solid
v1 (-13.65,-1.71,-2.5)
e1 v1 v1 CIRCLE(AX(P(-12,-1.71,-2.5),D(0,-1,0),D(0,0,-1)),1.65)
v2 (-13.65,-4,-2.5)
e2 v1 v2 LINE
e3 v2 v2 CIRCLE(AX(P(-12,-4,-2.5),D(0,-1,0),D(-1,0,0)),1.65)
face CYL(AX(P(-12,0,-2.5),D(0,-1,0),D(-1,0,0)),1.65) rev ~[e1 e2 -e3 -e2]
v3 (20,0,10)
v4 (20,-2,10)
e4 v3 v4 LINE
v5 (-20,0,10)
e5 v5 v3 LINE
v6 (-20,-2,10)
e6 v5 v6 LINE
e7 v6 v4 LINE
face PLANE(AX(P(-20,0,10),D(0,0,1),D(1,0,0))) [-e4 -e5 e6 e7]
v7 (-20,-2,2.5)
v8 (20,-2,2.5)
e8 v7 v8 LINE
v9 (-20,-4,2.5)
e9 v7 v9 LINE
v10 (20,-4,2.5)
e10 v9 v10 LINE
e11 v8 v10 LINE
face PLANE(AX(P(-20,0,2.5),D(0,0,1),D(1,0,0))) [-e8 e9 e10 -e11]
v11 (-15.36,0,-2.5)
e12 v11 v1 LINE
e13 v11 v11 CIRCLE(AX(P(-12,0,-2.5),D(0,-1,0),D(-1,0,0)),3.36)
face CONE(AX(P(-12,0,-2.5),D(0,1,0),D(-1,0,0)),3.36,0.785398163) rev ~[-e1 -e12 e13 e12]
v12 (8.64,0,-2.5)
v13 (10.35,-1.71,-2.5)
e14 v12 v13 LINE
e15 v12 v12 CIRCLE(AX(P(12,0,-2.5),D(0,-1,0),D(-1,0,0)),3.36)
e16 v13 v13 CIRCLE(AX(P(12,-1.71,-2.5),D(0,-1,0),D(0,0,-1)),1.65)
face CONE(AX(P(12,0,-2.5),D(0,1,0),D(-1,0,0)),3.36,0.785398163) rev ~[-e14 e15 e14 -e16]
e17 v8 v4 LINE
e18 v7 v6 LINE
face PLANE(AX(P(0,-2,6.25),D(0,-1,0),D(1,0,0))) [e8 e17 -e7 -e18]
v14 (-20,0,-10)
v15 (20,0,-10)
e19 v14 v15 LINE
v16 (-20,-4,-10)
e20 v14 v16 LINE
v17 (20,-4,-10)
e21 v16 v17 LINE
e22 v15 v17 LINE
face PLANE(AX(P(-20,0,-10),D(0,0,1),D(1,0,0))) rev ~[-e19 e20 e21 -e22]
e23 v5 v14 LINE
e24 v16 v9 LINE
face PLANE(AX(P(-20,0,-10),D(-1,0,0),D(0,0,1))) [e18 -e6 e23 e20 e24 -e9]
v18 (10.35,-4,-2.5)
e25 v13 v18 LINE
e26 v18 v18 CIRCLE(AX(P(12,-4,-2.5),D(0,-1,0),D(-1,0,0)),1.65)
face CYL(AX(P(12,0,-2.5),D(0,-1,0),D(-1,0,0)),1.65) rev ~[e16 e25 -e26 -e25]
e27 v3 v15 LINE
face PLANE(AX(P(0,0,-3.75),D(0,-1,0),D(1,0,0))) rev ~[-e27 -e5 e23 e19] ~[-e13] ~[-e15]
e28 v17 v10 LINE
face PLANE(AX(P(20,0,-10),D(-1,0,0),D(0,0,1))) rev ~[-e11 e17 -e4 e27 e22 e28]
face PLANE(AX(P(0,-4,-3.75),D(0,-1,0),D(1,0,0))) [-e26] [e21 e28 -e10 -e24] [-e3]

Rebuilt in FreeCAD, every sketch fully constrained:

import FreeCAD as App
import Part
import Sketcher

V = App.Vector


def add_polygon(sketch, points):
    """Adds a closed chain of lines whose ends are joined by coincident constraints."""
    first, n = sketch.GeometryCount, len(points)
    for a, b in zip(points, points[1:] + points[:1]):
        sketch.addGeometry(Part.LineSegment(App.Vector(*a, 0), App.Vector(*b, 0)), False)
    for i in range(n):
        sketch.addConstraint(Sketcher.Constraint("Coincident", first + i, 2, first + (i + 1) % n, 1))

doc = App.newDocument("Part")
params = doc.addObject("Spreadsheet::Sheet", "Params")
for row, (alias, value) in enumerate([
    ("sketch1_width", "40 mm"),
    ("sketch1_height", "7.5 mm"),
    ("pad1_length", "2 mm"),
    ("sketch2_width", "40 mm"),
    ("sketch2_height", "12.5 mm"),
    ("pad2_length", "4 mm"),
    ("sketch3_diameter", "3.3 mm"),
    ("hole_diameter", "3.3 mm"),
    ("hole_csink_diameter", "6.72 mm"),
], start=1):
    params.set(f"A{row}", alias)
    params.set(f"B{row}", "=" + value)
    params.setAlias(f"B{row}", alias)

body = doc.addObject("PartDesign::Body", "Body")

# Sketch on XZ plane
sketch1 = body.newObject("Sketcher::SketchObject", "Sketch")
sketch1.AttachmentSupport = (doc.getObject("XZ_Plane"), [""])
sketch1.MapMode = "FlatFace"
add_polygon(sketch1, [(-20, 10), (-20, 2.5), (20, 2.5), (20, 10)])  # lines 0-3
sketch1.addConstraint([
    Sketcher.Constraint("Vertical", 0),
    Sketcher.Constraint("Horizontal", 1),
    Sketcher.Constraint("Vertical", 2),
    Sketcher.Constraint("Horizontal", 3),
    Sketcher.Constraint("DistanceX", 1, 1, 1, 2, 40.0),
    Sketcher.Constraint("DistanceY", 0, 2, 0, 1, 7.5),
    Sketcher.Constraint("DistanceX", 0, 2, -1, 1, 20.0),
    Sketcher.Constraint("DistanceY", -1, 1, 2, 2, 10.0),
])
sketch1.setExpression("Constraints[8]", "Params.sketch1_width")
sketch1.setExpression("Constraints[9]", "Params.sketch1_height")
pad1 = body.newObject("PartDesign::Pad", "Pad")
pad1.Profile = sketch1
pad1.setExpression("Length", "Params.pad1_length")

# Sketch on XZ plane
sketch2 = body.newObject("Sketcher::SketchObject", "Sketch001")
sketch2.AttachmentSupport = (doc.getObject("XZ_Plane"), [""])
sketch2.MapMode = "FlatFace"
add_polygon(sketch2, [(-20, 2.5), (-20, -10), (20, -10), (20, 2.5)])  # lines 0-3
sketch2.addConstraint([
    Sketcher.Constraint("Vertical", 0),
    Sketcher.Constraint("Horizontal", 1),
    Sketcher.Constraint("Vertical", 2),
    Sketcher.Constraint("Horizontal", 3),
    Sketcher.Constraint("DistanceX", 1, 1, 1, 2, 40.0),
    Sketcher.Constraint("DistanceY", 0, 2, 0, 1, 12.5),
    Sketcher.Constraint("DistanceX", 0, 2, -1, 1, 20.0),
    Sketcher.Constraint("DistanceY", 0, 2, -1, 1, 10.0),
])
sketch2.setExpression("Constraints[8]", "Params.sketch2_width")
sketch2.setExpression("Constraints[9]", "Params.sketch2_height")
pad2 = body.newObject("PartDesign::Pad", "Pad001")
pad2.Profile = sketch2
pad2.setExpression("Length", "Params.pad2_length")

# Sketch on XZ plane
sketch3 = body.newObject("Sketcher::SketchObject", "Sketch002")
sketch3.AttachmentSupport = (doc.getObject("XZ_Plane"), [""])
sketch3.MapMode = "FlatFace"
sketch3.addGeometry([
    Part.Circle(V(-12, -2.5, 0), V(0, 0, 1), 1.65),
    Part.Circle(V(12, -2.5, 0), V(0, 0, 1), 1.65),
], False)
sketch3.addConstraint([
    Sketcher.Constraint("Equal", 0, 1),
    Sketcher.Constraint("Symmetric", 0, 3, 1, 3, -2),
    Sketcher.Constraint("Diameter", 0, 3.3),
    Sketcher.Constraint("DistanceX", 0, 3, -1, 1, 12.0),
    Sketcher.Constraint("DistanceY", 0, 3, -1, 1, 2.5),
])
sketch3.setExpression("Constraints[2]", "Params.sketch3_diameter")
doc.recompute()
hole = body.newObject("PartDesign::Hole", "Hole")
hole.Profile = sketch3
hole.ThreadType = "None"
hole.setExpression("Diameter", "Params.hole_diameter")
hole.DepthType = "ThroughAll"
hole.HoleCutType = "Countersink"
hole.setExpression("HoleCutDiameter", "Params.hole_csink_diameter")
hole.HoleCutCountersinkAngle = 90
hole.Reversed = True

doc.recompute()
